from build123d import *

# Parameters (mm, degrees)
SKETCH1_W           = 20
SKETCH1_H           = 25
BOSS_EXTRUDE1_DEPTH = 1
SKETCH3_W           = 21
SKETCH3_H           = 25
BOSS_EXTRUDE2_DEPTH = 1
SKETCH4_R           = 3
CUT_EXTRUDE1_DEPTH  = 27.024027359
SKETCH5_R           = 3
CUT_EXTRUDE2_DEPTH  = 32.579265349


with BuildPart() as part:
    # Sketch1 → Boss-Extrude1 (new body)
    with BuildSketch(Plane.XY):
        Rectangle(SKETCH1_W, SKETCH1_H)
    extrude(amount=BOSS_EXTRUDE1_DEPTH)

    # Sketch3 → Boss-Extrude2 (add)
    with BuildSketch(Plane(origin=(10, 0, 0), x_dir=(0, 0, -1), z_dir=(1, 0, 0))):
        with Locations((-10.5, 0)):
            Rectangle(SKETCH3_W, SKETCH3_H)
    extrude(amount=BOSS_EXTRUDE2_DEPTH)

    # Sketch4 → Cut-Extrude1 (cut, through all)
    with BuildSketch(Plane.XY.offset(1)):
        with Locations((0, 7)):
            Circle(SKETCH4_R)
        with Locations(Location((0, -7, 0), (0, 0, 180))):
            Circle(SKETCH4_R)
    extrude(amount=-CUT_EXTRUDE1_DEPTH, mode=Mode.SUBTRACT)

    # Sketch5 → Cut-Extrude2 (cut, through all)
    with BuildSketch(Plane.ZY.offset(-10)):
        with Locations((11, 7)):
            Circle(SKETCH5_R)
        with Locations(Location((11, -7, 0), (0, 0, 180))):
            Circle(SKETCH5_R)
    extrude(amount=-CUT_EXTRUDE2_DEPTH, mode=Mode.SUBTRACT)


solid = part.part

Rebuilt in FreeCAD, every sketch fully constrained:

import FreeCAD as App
import Part
import Sketcher
from FreeCAD import Vector

doc = App.newDocument("Part")
body = doc.addObject("PartDesign::Body", "Body")

# Sketch on XY plane
sketch1 = body.newObject("Sketcher::SketchObject", "Sketch")
sketch1.AttachmentSupport = (doc.getObject("XY_Plane"), [""])
sketch1.MapMode = "FlatFace"
sketch1.addGeometry([
    Part.LineSegment(Vector(-10, 12, 0), Vector(-10, -12, 0)),
    Part.LineSegment(Vector(-10, -12, 0), Vector(10, -12, 0)),
    Part.LineSegment(Vector(10, -12, 0), Vector(10, 12, 0)),
    Part.LineSegment(Vector(10, 12, 0), Vector(-10, 12, 0)),
], False)
sketch1.addConstraint([
    Sketcher.Constraint("Coincident", 0, 2, 1, 1),
    Sketcher.Constraint("Coincident", 1, 2, 2, 1),
    Sketcher.Constraint("Coincident", 2, 2, 3, 1),
    Sketcher.Constraint("Coincident", 3, 2, 0, 1),
    Sketcher.Constraint("Vertical", 0),
    Sketcher.Constraint("Horizontal", 1),
    Sketcher.Constraint("Vertical", 2),
    Sketcher.Constraint("Horizontal", 3),
    Sketcher.Constraint("Symmetric", 0, 2, 2, 2, -1, 1),
    Sketcher.Constraint("DistanceX", 1, 1, 1, 2, 20.0),
    Sketcher.Constraint("DistanceY", 0, 2, 0, 1, 25.0),
])
pad1 = body.newObject("PartDesign::Pad", "Pad")
pad1.Profile = sketch1
pad1.Length = 1

# Sketch on YZ plane
sketch2 = body.newObject("Sketcher::SketchObject", "Sketch001")
sketch2.AttachmentSupport = (doc.getObject("YZ_Plane"), [""])
sketch2.MapMode = "FlatFace"
sketch2.AttachmentOffset = App.Placement(Vector(0, 0, 10), App.Rotation())
sketch2.addGeometry([
    Part.LineSegment(Vector(12, 21, 0), Vector(-12, 21, 0)),
    Part.LineSegment(Vector(-12, 21, 0), Vector(-12, 0, 0)),
    Part.LineSegment(Vector(-12, 0, 0), Vector(12, 0, 0)),
    Part.LineSegment(Vector(12, 0, 0), Vector(12, 21, 0)),
], False)
sketch2.addConstraint([
    Sketcher.Constraint("Coincident", 0, 2, 1, 1),
    Sketcher.Constraint("Coincident", 1, 2, 2, 1),
    Sketcher.Constraint("Coincident", 2, 2, 3, 1),
    Sketcher.Constraint("Coincident", 3, 2, 0, 1),
    Sketcher.Constraint("Horizontal", 0),
    Sketcher.Constraint("Vertical", 1),
    Sketcher.Constraint("Horizontal", 2),
    Sketcher.Constraint("Vertical", 3),
    Sketcher.Constraint("Symmetric", 1, 2, 2, 2, -1, 1),
    Sketcher.Constraint("DistanceX", 0, 2, 0, 1, 25.0),
    Sketcher.Constraint("DistanceY", 1, 2, 1, 1, 21.0),
])
pad2 = body.newObject("PartDesign::Pad", "Pad001")
pad2.Profile = sketch2
pad2.Length = 1

# Sketch on XY plane
sketch3 = body.newObject("Sketcher::SketchObject", "Sketch002")
sketch3.AttachmentSupport = (doc.getObject("XY_Plane"), [""])
sketch3.MapMode = "FlatFace"
sketch3.AttachmentOffset = App.Placement(Vector(0, 0, 1), App.Rotation())
sketch3.addGeometry([
    Part.Circle(Vector(0, 7, 0), Vector(0, 0, 1), 3),
    Part.Circle(Vector(0, -7, 0), Vector(0, 0, 1), 3),
], False)
sketch3.addConstraint([
    Sketcher.Constraint("Equal", 0, 1),
    Sketcher.Constraint("Symmetric", 0, 3, 1, 3, -1, 1),
    Sketcher.Constraint("PointOnObject", 0, 3, -2),
    Sketcher.Constraint("Diameter", 0, 6.0),
    Sketcher.Constraint("DistanceY", -1, 1, 0, 3, 7.0),
])
pocket1 = body.newObject("PartDesign::Pocket", "Pocket")
pocket1.Profile = sketch3
pocket1.Type = "ThroughAll"

# Sketch on YZ plane
sketch4 = body.newObject("Sketcher::SketchObject", "Sketch003")
sketch4.AttachmentSupport = (doc.getObject("YZ_Plane"), [""])
sketch4.MapMode = "FlatFace"
sketch4.AttachmentOffset = App.Placement(Vector(0, 0, 10), App.Rotation())
sketch4.addGeometry([
    Part.Circle(Vector(7, 11, 0), Vector(0, 0, 1), 3),
    Part.Circle(Vector(-7, 11, 0), Vector(0, 0, 1), 3),
], False)
sketch4.addConstraint([
    Sketcher.Constraint("Equal", 0, 1),
    Sketcher.Constraint("Symmetric", 0, 3, 1, 3, -2),
    Sketcher.Constraint("Diameter", 0, 6.0),
    Sketcher.Constraint("DistanceX", -1, 1, 0, 3, 7.0),
    Sketcher.Constraint("DistanceY", -1, 1, 0, 3, 11.0),
])
pocket2 = body.newObject("PartDesign::Pocket", "Pocket001")
pocket2.Profile = sketch4
pocket2.Type = "ThroughAll"
pocket2.Reversed = True

doc.recompute()
